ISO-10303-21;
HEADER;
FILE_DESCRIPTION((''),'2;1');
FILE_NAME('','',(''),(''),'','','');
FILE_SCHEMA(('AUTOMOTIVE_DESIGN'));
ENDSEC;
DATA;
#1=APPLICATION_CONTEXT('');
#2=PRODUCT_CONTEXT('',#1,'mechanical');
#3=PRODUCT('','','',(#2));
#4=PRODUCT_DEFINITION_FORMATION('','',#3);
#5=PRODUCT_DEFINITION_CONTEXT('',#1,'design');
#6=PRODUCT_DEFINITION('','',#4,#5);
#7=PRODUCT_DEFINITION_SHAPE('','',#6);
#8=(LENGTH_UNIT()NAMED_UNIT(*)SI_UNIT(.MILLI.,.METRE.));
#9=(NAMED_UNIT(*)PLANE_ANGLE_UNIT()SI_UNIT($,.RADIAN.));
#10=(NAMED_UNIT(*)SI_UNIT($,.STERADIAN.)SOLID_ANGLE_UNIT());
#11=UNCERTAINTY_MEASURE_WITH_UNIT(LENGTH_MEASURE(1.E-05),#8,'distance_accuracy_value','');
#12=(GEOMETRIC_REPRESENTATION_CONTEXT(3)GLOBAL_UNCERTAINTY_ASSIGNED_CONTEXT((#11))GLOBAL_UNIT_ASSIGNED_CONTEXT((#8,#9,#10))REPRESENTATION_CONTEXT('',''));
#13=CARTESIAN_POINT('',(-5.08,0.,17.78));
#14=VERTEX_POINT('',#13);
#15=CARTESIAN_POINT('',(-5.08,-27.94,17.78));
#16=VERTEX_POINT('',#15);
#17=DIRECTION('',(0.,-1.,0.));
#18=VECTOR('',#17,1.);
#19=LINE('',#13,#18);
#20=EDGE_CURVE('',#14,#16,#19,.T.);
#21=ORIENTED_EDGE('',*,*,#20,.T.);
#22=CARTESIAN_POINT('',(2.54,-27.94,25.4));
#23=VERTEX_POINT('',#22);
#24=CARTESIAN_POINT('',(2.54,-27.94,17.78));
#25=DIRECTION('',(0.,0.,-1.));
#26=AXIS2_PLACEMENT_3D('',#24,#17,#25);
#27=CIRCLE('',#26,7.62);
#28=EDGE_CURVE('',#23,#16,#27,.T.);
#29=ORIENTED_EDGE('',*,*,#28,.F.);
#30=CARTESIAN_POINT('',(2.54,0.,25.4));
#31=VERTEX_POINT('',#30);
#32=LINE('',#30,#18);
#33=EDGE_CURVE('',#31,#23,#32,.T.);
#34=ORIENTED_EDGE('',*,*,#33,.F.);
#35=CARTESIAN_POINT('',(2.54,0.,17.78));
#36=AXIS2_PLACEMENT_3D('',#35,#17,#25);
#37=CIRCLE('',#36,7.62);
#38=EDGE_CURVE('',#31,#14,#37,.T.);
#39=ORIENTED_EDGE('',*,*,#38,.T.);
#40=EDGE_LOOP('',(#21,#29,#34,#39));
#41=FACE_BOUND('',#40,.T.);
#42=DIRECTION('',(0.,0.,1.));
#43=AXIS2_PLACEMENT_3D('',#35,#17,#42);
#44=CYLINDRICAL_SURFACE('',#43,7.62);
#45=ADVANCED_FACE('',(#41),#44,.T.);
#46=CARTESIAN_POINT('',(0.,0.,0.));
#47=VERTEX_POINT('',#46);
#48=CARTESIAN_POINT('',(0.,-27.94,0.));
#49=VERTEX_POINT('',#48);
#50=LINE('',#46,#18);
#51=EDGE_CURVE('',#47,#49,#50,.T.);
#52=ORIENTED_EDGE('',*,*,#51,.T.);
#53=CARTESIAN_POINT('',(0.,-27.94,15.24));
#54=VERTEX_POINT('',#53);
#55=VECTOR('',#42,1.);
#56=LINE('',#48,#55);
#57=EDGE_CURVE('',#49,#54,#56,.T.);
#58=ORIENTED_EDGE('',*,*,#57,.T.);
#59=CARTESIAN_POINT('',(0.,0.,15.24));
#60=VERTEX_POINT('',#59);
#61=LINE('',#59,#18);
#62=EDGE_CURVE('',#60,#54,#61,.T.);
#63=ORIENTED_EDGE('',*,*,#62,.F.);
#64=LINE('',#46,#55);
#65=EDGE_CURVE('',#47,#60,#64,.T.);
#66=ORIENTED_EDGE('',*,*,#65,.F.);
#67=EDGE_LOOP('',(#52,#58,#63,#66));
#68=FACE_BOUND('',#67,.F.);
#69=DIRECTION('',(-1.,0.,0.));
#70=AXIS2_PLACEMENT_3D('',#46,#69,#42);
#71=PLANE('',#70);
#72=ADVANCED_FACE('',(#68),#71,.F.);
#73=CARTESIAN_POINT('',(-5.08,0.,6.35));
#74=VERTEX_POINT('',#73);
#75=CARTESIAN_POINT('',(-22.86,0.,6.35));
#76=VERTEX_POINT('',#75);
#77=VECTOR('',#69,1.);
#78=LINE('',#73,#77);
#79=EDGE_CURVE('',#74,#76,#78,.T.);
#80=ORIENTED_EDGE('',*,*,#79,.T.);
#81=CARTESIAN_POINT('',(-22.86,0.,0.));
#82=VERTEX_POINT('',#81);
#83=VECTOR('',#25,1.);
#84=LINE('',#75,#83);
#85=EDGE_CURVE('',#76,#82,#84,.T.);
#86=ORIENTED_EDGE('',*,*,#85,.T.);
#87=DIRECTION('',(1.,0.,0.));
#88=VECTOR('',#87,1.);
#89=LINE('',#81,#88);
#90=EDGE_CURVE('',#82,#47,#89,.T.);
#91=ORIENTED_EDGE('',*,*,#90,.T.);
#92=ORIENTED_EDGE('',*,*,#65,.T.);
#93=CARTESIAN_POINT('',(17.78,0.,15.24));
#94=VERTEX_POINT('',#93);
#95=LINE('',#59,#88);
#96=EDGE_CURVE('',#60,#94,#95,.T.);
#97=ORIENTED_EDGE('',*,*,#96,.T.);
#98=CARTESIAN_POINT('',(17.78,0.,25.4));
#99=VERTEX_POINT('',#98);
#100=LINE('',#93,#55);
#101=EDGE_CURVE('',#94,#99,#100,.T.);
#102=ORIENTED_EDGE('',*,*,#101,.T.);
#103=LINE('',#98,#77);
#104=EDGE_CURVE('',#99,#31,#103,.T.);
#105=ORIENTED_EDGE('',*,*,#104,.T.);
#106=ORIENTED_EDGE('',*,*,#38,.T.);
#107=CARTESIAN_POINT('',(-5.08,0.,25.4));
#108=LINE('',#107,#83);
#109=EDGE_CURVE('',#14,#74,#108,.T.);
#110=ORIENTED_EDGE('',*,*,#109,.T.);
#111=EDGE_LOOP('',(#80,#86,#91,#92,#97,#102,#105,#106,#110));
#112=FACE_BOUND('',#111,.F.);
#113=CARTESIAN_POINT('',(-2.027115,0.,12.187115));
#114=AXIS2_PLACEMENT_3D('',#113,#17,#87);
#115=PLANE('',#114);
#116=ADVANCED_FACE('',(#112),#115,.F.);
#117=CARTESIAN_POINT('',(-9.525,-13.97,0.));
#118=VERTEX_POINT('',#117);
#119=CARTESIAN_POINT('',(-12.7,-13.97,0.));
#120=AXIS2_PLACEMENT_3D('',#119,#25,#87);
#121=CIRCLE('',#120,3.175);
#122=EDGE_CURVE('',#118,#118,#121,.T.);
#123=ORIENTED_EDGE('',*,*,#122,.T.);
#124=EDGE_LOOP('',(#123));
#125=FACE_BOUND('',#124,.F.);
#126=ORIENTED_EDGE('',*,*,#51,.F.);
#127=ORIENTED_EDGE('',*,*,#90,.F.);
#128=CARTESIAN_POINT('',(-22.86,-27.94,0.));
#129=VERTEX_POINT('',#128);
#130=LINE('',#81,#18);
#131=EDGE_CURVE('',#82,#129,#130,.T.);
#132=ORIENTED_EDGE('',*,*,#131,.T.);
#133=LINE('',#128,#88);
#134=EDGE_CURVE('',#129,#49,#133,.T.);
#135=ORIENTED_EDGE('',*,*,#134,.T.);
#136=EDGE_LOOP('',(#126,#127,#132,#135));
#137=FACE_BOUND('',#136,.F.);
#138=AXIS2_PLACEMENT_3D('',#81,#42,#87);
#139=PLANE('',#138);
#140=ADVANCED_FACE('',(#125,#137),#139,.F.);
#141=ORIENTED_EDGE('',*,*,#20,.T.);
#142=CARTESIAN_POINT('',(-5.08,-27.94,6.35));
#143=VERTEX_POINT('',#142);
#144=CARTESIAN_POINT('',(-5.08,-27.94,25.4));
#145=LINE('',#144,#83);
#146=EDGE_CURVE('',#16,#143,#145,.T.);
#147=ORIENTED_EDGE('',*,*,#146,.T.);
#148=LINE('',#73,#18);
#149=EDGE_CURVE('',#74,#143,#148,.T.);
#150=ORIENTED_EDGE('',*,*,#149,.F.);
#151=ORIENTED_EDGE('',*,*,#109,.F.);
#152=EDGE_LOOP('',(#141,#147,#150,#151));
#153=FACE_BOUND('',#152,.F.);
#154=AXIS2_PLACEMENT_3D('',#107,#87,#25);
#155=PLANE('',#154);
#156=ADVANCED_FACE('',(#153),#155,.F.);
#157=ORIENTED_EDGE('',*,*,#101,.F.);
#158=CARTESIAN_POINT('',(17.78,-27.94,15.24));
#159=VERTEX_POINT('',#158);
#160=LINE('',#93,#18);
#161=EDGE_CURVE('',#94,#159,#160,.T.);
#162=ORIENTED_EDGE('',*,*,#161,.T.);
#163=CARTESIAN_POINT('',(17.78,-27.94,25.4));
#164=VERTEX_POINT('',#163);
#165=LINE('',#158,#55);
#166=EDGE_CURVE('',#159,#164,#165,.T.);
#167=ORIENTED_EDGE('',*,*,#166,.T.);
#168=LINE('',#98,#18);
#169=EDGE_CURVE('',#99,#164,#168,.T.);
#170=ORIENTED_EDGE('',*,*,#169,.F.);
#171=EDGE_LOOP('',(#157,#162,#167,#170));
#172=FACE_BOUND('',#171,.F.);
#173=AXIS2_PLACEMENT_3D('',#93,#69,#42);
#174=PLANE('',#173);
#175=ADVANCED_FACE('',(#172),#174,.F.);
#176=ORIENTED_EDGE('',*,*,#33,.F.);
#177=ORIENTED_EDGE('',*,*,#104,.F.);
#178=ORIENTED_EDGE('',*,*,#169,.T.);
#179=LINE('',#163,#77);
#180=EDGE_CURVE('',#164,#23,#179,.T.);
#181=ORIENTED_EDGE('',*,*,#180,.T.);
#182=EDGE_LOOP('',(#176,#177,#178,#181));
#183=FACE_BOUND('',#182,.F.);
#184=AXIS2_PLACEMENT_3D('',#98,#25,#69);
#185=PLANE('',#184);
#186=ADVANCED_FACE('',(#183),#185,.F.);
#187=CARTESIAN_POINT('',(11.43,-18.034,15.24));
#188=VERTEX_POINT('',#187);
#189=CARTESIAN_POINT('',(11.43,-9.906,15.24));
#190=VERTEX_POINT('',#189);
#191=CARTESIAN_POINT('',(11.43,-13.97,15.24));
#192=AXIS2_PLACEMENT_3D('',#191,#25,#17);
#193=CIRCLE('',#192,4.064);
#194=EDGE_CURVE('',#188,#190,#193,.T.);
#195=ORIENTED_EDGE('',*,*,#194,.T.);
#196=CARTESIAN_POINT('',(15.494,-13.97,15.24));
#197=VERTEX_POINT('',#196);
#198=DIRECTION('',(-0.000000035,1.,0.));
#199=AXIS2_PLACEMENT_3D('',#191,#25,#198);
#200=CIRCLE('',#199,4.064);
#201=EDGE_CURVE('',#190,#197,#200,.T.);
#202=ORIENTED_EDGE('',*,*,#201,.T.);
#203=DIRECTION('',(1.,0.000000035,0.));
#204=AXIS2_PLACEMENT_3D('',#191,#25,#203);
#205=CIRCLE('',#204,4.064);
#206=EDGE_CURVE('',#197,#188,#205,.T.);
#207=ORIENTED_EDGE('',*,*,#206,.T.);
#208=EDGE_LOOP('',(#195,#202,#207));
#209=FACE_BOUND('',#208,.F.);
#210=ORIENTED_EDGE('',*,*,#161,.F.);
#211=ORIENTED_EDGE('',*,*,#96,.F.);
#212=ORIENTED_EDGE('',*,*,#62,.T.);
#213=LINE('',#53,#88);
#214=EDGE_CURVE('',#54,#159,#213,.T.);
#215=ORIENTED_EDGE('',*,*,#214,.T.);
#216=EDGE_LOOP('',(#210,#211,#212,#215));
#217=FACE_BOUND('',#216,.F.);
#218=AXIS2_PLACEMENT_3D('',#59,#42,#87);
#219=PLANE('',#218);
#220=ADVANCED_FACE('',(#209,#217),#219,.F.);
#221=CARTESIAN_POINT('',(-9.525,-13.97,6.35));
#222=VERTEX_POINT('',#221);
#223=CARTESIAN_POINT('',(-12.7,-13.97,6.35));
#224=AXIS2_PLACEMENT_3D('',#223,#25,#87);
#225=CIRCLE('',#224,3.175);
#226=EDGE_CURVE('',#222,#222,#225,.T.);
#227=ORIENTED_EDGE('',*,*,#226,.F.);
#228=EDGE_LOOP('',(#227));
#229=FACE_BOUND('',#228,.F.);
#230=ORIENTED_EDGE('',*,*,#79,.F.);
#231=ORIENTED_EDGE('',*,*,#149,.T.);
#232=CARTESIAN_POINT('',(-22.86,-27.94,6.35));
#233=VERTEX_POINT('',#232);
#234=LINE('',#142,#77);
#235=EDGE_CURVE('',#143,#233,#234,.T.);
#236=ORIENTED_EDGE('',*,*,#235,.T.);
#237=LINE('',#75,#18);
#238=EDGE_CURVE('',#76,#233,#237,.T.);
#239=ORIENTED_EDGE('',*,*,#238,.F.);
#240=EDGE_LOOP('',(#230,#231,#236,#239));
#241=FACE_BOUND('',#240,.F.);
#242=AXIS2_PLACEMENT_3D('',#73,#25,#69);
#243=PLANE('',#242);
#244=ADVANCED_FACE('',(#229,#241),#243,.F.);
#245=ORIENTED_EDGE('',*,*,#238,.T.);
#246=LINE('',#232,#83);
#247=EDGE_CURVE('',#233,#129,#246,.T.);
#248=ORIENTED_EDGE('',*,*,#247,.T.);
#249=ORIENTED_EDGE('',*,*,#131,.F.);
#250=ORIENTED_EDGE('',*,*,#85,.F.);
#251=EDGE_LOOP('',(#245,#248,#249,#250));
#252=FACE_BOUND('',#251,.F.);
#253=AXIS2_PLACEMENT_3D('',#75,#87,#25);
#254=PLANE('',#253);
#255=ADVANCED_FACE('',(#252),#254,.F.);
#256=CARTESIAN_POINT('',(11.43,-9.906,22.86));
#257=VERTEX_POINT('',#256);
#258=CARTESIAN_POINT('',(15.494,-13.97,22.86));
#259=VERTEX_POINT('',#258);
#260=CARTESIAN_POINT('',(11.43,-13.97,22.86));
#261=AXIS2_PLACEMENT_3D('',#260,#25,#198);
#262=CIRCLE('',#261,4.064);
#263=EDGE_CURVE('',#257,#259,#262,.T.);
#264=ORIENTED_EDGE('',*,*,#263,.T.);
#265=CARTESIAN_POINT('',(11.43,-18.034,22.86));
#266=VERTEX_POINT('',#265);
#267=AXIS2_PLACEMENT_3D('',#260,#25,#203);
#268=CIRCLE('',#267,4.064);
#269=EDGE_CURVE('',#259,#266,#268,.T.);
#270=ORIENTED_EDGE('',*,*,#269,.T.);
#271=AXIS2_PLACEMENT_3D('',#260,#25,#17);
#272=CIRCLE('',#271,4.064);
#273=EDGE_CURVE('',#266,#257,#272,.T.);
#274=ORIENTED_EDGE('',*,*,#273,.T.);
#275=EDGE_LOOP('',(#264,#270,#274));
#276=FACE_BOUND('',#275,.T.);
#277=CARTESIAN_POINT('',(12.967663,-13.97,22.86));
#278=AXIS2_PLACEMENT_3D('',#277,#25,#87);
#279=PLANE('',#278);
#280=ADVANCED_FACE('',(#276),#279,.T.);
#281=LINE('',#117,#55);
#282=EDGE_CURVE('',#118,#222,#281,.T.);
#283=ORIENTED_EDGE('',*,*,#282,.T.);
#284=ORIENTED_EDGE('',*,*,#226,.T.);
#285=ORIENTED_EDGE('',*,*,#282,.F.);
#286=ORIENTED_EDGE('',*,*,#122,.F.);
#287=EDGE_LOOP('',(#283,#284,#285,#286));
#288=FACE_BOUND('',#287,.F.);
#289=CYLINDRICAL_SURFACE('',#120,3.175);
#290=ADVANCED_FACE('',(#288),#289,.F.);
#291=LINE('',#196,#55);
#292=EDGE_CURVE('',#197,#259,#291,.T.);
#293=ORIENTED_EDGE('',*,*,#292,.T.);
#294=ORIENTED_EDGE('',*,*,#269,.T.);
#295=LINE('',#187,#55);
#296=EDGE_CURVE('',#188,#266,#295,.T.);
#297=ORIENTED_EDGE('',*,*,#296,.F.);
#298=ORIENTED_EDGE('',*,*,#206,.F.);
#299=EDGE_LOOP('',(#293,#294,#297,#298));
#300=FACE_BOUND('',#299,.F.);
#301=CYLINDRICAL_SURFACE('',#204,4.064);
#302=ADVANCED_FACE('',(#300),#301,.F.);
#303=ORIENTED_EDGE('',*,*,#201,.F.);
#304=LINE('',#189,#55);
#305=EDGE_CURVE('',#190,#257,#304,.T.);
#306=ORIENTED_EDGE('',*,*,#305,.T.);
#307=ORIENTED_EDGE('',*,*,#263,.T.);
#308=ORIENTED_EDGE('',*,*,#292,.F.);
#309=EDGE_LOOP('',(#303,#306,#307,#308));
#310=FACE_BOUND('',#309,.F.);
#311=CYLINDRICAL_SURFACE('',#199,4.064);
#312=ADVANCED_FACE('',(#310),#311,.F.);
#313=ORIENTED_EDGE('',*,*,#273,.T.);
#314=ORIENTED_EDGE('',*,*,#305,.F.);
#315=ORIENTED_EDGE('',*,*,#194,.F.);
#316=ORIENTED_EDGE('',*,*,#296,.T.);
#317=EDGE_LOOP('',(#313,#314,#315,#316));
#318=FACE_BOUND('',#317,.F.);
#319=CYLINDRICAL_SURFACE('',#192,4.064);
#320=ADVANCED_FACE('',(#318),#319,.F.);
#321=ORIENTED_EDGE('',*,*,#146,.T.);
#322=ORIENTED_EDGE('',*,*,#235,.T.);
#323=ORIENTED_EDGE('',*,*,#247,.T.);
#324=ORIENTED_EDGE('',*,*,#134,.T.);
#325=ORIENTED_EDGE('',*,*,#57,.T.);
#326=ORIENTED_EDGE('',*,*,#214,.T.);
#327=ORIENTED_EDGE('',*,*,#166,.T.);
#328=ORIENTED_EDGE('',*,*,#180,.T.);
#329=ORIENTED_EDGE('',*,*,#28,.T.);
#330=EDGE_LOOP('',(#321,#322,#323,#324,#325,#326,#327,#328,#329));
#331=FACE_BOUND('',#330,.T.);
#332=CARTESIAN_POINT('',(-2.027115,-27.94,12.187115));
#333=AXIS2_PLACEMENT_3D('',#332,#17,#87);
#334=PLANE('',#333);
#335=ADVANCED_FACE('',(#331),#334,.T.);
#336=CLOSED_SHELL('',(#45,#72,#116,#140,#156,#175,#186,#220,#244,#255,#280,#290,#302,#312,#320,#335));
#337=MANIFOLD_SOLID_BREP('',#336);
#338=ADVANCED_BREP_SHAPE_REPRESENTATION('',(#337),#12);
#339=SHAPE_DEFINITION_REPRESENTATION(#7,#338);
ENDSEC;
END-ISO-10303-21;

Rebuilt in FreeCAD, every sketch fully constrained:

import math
import FreeCAD as App
import Part
import Sketcher
Q = App.Units.Quantity


def edges_at(feature, points):
    """Names of the edges that pass closest to the given points."""
    edges = feature.Shape.Edges
    near = lambda p: min(range(len(edges)), key=lambda i: edges[i].distToShape(Part.Vertex(*p))[0])
    return sorted({f"Edge{near(p) + 1}" for p in points})


def add_polygon(sketch, points):
    """Adds a closed chain of lines whose ends are joined by coincident constraints."""
    first, n = sketch.GeometryCount, len(points)
    for a, b in zip(points, points[1:] + points[:1]):
        sketch.addGeometry(Part.LineSegment(App.Vector(*a, 0), App.Vector(*b, 0)), False)
    for i in range(n):
        sketch.addConstraint(Sketcher.Constraint("Coincident", first + i, 2, first + (i + 1) % n, 1))

doc = App.newDocument("Part")
body = doc.addObject("PartDesign::Body", "Body")

# Sketch on XZ plane
sketch1 = doc.addObject("Sketcher::SketchObject", "Sketch")
body.addObject(sketch1)
sketch1.AttachmentSupport = (doc.XZ_Plane, [""])
sketch1.MapMode = "FlatFace"
add_polygon(sketch1, [(-23, 0), (0, 0), (0, 15), (18, 15), (18, 25), (-5, 25), (-5, 6), (-23, 6)])  # lines 0-7
sketch1.addConstraint(Sketcher.Constraint("Horizontal", 0))
sketch1.addConstraint(Sketcher.Constraint("Vertical", 1))
sketch1.addConstraint(Sketcher.Constraint("Horizontal", 2))
sketch1.addConstraint(Sketcher.Constraint("Vertical", 3))
sketch1.addConstraint(Sketcher.Constraint("Horizontal", 4))
sketch1.addConstraint(Sketcher.Constraint("Vertical", 5))
sketch1.addConstraint(Sketcher.Constraint("Horizontal", 6))
sketch1.addConstraint(Sketcher.Constraint("Vertical", 7))
sketch1.addConstraint(Sketcher.Constraint("Coincident", 0, 2, -1, 1))
sketch1.addConstraint(Sketcher.Constraint("Equal", 0, 4))
sketch1.addConstraint(Sketcher.Constraint("DistanceX", 0, 1, 0, 2, Q("0.9 in")))
sketch1.addConstraint(Sketcher.Constraint("DistanceX", 2, 1, 2, 2, Q("0.7 in")))
sketch1.addConstraint(Sketcher.Constraint("DistanceY", 1, 1, 1, 2, Q("0.6 in")))
sketch1.addConstraint(Sketcher.Constraint("DistanceY", 3, 1, 3, 2, Q("0.4 in")))
sketch1.addConstraint(Sketcher.Constraint("DistanceY", 5, 2, 5, 1, Q("0.75 in")))
pad1 = doc.addObject("PartDesign::Pad", "Pad")
body.addObject(pad1)
pad1.Profile = sketch1
pad1.Length = Q("1.1 in")

# Sketch on XY plane
sketch2 = doc.addObject("Sketcher::SketchObject", "Sketch001")
body.addObject(sketch2)
sketch2.AttachmentSupport = (doc.XY_Plane, [""])
sketch2.MapMode = "FlatFace"
sketch2.AttachmentOffset = App.Placement(App.Vector(0, 0, 0.6 * 25.4), App.Rotation())
sketch2.addGeometry(Part.ArcOfCircle(Part.Circle(App.Vector(11.4, -14, 0), App.Vector(0, 0, 1), 4.1), math.radians(0), math.radians(90)), False)
sketch2.addGeometry(Part.ArcOfCircle(Part.Circle(App.Vector(11.4, -14, 0), App.Vector(0, 0, 1), 4.1), math.radians(-90), math.radians(0)), False)
sketch2.addGeometry(Part.ArcOfCircle(Part.Circle(App.Vector(11.4, -14, 0), App.Vector(0, 0, 1), 4.1), math.radians(90), math.radians(270)), False)
sketch2.addConstraint(Sketcher.Constraint("Tangent", 0, 1, 1, 2))
sketch2.addConstraint(Sketcher.Constraint("Tangent", 1, 1, 2, 2))
sketch2.addConstraint(Sketcher.Constraint("Tangent", 2, 1, 0, 2))
sketch2.addConstraint(Sketcher.Constraint("Horizontal", 2, 3, 0, 1))
sketch2.addConstraint(Sketcher.Constraint("Vertical", 2, 3, 1, 1))
sketch2.addConstraint(Sketcher.Constraint("Vertical", 1, 1, 2, 1))
sketch2.addConstraint(Sketcher.Constraint("Radius", 0, Q("0.16 in")))
sketch2.addConstraint(Sketcher.Constraint("DistanceX", -1, 1, 0, 3, Q("0.45 in")))
sketch2.addConstraint(Sketcher.Constraint("DistanceY", 0, 3, -1, 1, Q("0.55 in")))
pocket1 = doc.addObject("PartDesign::Pocket", "Pocket")
body.addObject(pocket1)
pocket1.Profile = sketch2
pocket1.Length = Q("0.3 in")
pocket1.Reversed = True
doc.recompute()

fillet = doc.addObject("PartDesign::Fillet", "Fillet")
body.addObject(fillet)
fillet.Base = (pocket1, edges_at(pocket1, [(-5.08, -13.97, 25.4)]))
fillet.Radius = Q("0.3 in")

# Sketch on XY plane
sketch3 = doc.addObject("Sketcher::SketchObject", "Sketch002")
body.addObject(sketch3)
sketch3.AttachmentSupport = (doc.XY_Plane, [""])
sketch3.MapMode = "FlatFace"
sketch3.addGeometry(Part.Circle(App.Vector(-12.7, -14, 0), App.Vector(0, 0, 1), 3.2), False)
sketch3.addConstraint(Sketcher.Constraint("Diameter", 0, Q("0.25 in")))
sketch3.addConstraint(Sketcher.Constraint("DistanceX", 0, 3, -1, 1, Q("0.5 in")))
sketch3.addConstraint(Sketcher.Constraint("DistanceY", 0, 3, -1, 1, Q("0.55 in")))
pocket2 = doc.addObject("PartDesign::Pocket", "Pocket001")
body.addObject(pocket2)
pocket2.Profile = sketch3
pocket2.Length = Q("1 in")
pocket2.Reversed = True

doc.recompute()
